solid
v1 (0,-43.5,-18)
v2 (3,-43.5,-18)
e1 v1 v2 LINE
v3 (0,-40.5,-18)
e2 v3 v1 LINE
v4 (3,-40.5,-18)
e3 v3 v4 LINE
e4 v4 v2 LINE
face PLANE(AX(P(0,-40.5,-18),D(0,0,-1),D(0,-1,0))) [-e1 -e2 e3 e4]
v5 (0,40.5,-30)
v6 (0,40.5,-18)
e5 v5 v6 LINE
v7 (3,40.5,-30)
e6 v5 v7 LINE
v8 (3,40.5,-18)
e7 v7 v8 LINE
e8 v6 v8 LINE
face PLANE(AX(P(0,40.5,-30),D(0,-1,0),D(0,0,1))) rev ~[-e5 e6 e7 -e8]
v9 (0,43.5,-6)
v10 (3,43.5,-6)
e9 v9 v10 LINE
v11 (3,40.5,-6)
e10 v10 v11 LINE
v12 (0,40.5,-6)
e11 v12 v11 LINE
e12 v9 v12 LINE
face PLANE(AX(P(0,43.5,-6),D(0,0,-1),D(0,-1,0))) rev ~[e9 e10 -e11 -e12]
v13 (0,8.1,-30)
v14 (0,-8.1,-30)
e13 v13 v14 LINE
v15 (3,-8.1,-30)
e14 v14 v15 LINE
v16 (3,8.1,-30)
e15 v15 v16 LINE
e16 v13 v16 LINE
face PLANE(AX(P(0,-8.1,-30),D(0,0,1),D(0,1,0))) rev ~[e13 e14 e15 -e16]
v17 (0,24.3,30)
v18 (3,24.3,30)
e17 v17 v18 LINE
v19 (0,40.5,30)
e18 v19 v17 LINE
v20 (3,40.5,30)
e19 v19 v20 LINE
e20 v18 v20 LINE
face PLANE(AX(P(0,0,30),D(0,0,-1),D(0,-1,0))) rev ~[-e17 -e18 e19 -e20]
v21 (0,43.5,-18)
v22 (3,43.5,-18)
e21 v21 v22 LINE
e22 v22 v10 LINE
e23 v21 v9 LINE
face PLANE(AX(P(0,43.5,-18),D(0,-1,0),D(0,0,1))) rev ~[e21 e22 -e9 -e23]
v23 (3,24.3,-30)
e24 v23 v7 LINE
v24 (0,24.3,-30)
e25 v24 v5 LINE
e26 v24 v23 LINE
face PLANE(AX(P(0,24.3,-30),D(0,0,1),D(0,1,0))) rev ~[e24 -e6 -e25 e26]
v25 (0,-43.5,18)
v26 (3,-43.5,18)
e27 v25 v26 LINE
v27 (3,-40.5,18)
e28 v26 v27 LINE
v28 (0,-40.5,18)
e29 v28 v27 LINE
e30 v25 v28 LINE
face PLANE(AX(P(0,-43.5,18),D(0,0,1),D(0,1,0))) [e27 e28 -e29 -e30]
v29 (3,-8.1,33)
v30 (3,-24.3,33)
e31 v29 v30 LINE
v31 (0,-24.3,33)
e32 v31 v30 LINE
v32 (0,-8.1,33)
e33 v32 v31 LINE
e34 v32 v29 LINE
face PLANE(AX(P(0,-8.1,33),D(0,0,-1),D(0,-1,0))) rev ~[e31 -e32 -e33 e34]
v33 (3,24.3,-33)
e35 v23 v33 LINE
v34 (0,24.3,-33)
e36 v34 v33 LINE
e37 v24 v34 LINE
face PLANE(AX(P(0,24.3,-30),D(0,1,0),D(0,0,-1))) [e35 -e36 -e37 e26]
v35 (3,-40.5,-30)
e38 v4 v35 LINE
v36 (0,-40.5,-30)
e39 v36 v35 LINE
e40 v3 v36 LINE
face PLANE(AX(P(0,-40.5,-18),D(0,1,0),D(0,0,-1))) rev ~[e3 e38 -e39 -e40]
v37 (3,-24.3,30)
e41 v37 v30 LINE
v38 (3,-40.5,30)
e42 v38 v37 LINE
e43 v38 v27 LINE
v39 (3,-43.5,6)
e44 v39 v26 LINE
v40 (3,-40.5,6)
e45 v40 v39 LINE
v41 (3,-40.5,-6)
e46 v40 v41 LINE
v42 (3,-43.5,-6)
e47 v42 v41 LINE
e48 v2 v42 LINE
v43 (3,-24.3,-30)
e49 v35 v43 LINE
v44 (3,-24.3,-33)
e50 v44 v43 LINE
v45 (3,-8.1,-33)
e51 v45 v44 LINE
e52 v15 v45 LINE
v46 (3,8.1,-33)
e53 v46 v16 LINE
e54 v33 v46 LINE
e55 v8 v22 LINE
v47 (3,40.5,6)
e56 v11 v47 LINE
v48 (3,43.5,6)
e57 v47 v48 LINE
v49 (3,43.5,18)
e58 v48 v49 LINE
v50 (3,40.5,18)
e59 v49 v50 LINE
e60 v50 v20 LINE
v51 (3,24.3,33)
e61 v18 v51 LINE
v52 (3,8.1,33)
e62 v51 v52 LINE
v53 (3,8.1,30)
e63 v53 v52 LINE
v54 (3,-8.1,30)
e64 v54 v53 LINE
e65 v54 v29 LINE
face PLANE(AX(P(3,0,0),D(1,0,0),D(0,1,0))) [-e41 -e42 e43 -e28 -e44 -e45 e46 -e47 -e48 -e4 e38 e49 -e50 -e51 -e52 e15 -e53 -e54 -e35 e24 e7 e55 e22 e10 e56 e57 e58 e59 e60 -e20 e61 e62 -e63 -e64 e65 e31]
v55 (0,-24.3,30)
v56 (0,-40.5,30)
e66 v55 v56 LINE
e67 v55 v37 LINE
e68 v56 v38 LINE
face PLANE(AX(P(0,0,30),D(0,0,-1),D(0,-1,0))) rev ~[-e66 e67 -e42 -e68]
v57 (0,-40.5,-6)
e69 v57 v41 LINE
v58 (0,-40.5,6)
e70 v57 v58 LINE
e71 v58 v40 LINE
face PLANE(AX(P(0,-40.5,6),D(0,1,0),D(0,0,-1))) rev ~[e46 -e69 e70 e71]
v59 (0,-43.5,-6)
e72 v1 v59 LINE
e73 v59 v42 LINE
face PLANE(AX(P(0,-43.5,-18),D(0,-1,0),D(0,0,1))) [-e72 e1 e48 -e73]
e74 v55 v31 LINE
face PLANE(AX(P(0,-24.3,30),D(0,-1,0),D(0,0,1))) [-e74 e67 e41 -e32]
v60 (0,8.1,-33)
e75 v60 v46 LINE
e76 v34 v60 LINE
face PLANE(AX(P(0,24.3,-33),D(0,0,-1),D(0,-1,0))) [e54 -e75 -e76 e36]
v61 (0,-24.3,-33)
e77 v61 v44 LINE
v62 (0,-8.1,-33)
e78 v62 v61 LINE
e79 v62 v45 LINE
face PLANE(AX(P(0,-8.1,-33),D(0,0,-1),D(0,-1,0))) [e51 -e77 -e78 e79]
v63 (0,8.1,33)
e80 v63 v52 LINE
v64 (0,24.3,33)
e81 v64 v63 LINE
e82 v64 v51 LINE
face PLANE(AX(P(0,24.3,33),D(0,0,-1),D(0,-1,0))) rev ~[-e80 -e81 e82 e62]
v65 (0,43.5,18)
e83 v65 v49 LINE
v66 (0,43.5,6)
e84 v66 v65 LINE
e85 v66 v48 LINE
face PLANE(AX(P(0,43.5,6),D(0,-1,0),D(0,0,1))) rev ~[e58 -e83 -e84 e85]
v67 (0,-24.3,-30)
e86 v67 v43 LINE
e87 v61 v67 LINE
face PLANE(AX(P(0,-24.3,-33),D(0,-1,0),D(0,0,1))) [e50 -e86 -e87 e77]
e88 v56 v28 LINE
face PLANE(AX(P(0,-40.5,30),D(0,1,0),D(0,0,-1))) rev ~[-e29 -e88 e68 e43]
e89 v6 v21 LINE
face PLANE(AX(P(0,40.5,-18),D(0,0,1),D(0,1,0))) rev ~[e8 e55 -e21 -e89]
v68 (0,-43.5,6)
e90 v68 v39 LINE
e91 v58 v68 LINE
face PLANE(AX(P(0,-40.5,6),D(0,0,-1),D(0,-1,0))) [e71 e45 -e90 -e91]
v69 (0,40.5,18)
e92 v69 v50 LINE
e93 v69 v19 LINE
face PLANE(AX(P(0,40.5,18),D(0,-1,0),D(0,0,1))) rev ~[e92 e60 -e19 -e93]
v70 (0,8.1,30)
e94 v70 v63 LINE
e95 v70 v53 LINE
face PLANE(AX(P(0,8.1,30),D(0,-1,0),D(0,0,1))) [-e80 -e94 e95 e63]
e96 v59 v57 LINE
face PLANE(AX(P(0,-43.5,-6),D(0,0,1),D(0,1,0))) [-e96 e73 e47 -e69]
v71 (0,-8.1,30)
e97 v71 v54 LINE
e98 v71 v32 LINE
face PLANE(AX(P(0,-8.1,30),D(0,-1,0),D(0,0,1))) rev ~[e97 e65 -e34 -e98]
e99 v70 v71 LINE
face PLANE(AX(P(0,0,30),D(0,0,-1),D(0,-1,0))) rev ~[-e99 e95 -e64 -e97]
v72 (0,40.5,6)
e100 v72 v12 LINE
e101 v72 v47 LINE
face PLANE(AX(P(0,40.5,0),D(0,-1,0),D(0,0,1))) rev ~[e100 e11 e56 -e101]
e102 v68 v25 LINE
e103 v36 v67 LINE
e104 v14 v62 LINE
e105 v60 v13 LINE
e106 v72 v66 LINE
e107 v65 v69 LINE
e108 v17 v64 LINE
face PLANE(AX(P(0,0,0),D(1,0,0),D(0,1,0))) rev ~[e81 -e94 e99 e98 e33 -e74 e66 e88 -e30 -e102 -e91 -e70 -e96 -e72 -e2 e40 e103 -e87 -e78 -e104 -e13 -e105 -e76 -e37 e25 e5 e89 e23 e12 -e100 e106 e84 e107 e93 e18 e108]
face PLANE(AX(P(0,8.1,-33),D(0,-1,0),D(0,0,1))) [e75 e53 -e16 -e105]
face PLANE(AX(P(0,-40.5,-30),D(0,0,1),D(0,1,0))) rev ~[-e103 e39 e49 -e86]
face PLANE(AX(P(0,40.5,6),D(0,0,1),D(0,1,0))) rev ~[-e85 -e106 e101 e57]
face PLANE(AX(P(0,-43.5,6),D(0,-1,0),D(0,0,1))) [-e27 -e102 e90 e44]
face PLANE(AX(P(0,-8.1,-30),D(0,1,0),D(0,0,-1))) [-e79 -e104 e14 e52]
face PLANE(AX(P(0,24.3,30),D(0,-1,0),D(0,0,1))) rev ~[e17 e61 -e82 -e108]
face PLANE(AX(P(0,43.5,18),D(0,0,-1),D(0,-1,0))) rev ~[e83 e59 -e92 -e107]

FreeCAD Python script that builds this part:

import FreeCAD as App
import Part
import Sketcher

V = App.Vector
Q = App.Units.Quantity

doc = App.newDocument("Part")
params = doc.addObject("Spreadsheet::Sheet", "Params")
for row, (alias, value) in enumerate([
    ("sketch1_width", "3 mm"),
    ("sketch1_width2", "81 mm"),
    ("sketch1_height", "12 mm"),
    ("pad1_length", "3 mm"),
    ("sketch2_height", "3 mm"),
    ("sketch2_width", "16.2 mm"),
    ("pad2_length", "3 mm"),
], start=1):
    params.set(f"A{row}", alias)
    params.set(f"B{row}", "=" + value)
    params.setAlias(f"B{row}", alias)

body = doc.addObject("PartDesign::Body", "Body")

sketch1 = doc.addObject("Sketcher::SketchObject", "Sketch")
body.addObject(sketch1)
sketch1.AttachmentSupport = (doc.YZ_Plane, [""])
sketch1.MapMode = "FlatFace"
sketch1.addGeometry(Part.LineSegment(V(-40.5, 30, 0), V(-40.5, 18, 0)), False)
sketch1.addGeometry(Part.LineSegment(V(-40.5, 18, 0), V(-43.5, 18, 0)), False)
sketch1.addGeometry(Part.LineSegment(V(-43.5, 18, 0), V(-43.5, 6, 0)), False)
sketch1.addGeometry(Part.LineSegment(V(-43.5, 6, 0), V(-40.5, 6, 0)), False)
sketch1.addGeometry(Part.LineSegment(V(-40.5, 6, 0), V(-40.5, -6, 0)), False)
sketch1.addGeometry(Part.LineSegment(V(-40.5, -6, 0), V(-43.5, -6, 0)), False)
sketch1.addGeometry(Part.LineSegment(V(-43.5, -6, 0), V(-43.5, -18, 0)), False)
sketch1.addGeometry(Part.LineSegment(V(-43.5, -18, 0), V(-40.5, -18, 0)), False)
sketch1.addGeometry(Part.LineSegment(V(-40.5, -18, 0), V(-40.5, -30, 0)), False)
sketch1.addGeometry(Part.LineSegment(V(-40.5, -30, 0), V(-24.3, -30, 0)), False)
sketch1.addGeometry(Part.LineSegment(V(-24.3, -30, 0), V(-24.3, -33, 0)), False)
sketch1.addGeometry(Part.LineSegment(V(-24.3, -33, 0), V(-8.1, -33, 0)), False)
sketch1.addGeometry(Part.LineSegment(V(-8.1, -33, 0), V(-8.1, -30, 0)), False)
sketch1.addGeometry(Part.LineSegment(V(-8.1, -30, 0), V(8.1, -30, 0)), False)
sketch1.addGeometry(Part.LineSegment(V(8.1, -30, 0), V(8.1, -33, 0)), False)
sketch1.addGeometry(Part.LineSegment(V(8.1, -33, 0), V(24.3, -33, 0)), False)
sketch1.addGeometry(Part.LineSegment(V(24.3, -33, 0), V(24.3, -30, 0)), False)
sketch1.addGeometry(Part.LineSegment(V(24.3, -30, 0), V(40.5, -30, 0)), False)
sketch1.addGeometry(Part.LineSegment(V(40.5, -30, 0), V(40.5, -18, 0)), False)
sketch1.addGeometry(Part.LineSegment(V(40.5, -18, 0), V(43.5, -18, 0)), False)
sketch1.addGeometry(Part.LineSegment(V(43.5, -18, 0), V(43.5, -6, 0)), False)
sketch1.addGeometry(Part.LineSegment(V(43.5, -6, 0), V(40.5, -6, 0)), False)
sketch1.addGeometry(Part.LineSegment(V(40.5, -6, 0), V(40.5, 6, 0)), False)
sketch1.addGeometry(Part.LineSegment(V(40.5, 6, 0), V(43.5, 6, 0)), False)
sketch1.addGeometry(Part.LineSegment(V(43.5, 6, 0), V(43.5, 18, 0)), False)
sketch1.addGeometry(Part.LineSegment(V(43.5, 18, 0), V(40.5, 18, 0)), False)
sketch1.addGeometry(Part.LineSegment(V(40.5, 18, 0), V(40.5, 30, 0)), False)
sketch1.addGeometry(Part.LineSegment(V(40.5, 30, 0), V(-40.5, 30, 0)), False)
sketch1.addConstraint(Sketcher.Constraint("Coincident", 0, 2, 1, 1))
sketch1.addConstraint(Sketcher.Constraint("Coincident", 1, 2, 2, 1))
sketch1.addConstraint(Sketcher.Constraint("Coincident", 2, 2, 3, 1))
sketch1.addConstraint(Sketcher.Constraint("Coincident", 3, 2, 4, 1))
sketch1.addConstraint(Sketcher.Constraint("Coincident", 4, 2, 5, 1))
sketch1.addConstraint(Sketcher.Constraint("Coincident", 5, 2, 6, 1))
sketch1.addConstraint(Sketcher.Constraint("Coincident", 6, 2, 7, 1))
sketch1.addConstraint(Sketcher.Constraint("Coincident", 7, 2, 8, 1))
sketch1.addConstraint(Sketcher.Constraint("Coincident", 8, 2, 9, 1))
sketch1.addConstraint(Sketcher.Constraint("Coincident", 9, 2, 10, 1))
sketch1.addConstraint(Sketcher.Constraint("Coincident", 10, 2, 11, 1))
sketch1.addConstraint(Sketcher.Constraint("Coincident", 11, 2, 12, 1))
sketch1.addConstraint(Sketcher.Constraint("Coincident", 12, 2, 13, 1))
sketch1.addConstraint(Sketcher.Constraint("Coincident", 13, 2, 14, 1))
sketch1.addConstraint(Sketcher.Constraint("Coincident", 14, 2, 15, 1))
sketch1.addConstraint(Sketcher.Constraint("Coincident", 15, 2, 16, 1))
sketch1.addConstraint(Sketcher.Constraint("Coincident", 16, 2, 17, 1))
sketch1.addConstraint(Sketcher.Constraint("Coincident", 17, 2, 18, 1))
sketch1.addConstraint(Sketcher.Constraint("Coincident", 18, 2, 19, 1))
sketch1.addConstraint(Sketcher.Constraint("Coincident", 19, 2, 20, 1))
sketch1.addConstraint(Sketcher.Constraint("Coincident", 20, 2, 21, 1))
sketch1.addConstraint(Sketcher.Constraint("Coincident", 21, 2, 22, 1))
sketch1.addConstraint(Sketcher.Constraint("Coincident", 22, 2, 23, 1))
sketch1.addConstraint(Sketcher.Constraint("Coincident", 23, 2, 24, 1))
sketch1.addConstraint(Sketcher.Constraint("Coincident", 24, 2, 25, 1))
sketch1.addConstraint(Sketcher.Constraint("Coincident", 25, 2, 26, 1))
sketch1.addConstraint(Sketcher.Constraint("Coincident", 26, 2, 27, 1))
sketch1.addConstraint(Sketcher.Constraint("Coincident", 27, 2, 0, 1))
sketch1.addConstraint(Sketcher.Constraint("Vertical", 0))
sketch1.addConstraint(Sketcher.Constraint("Horizontal", 1))
sketch1.addConstraint(Sketcher.Constraint("Vertical", 2))
sketch1.addConstraint(Sketcher.Constraint("Horizontal", 3))
sketch1.addConstraint(Sketcher.Constraint("Vertical", 4))
sketch1.addConstraint(Sketcher.Constraint("Horizontal", 5))
sketch1.addConstraint(Sketcher.Constraint("Vertical", 6))
sketch1.addConstraint(Sketcher.Constraint("Horizontal", 7))
sketch1.addConstraint(Sketcher.Constraint("Vertical", 8))
sketch1.addConstraint(Sketcher.Constraint("Horizontal", 9))
sketch1.addConstraint(Sketcher.Constraint("Vertical", 10))
sketch1.addConstraint(Sketcher.Constraint("Horizontal", 11))
sketch1.addConstraint(Sketcher.Constraint("Vertical", 12))
sketch1.addConstraint(Sketcher.Constraint("Horizontal", 13))
sketch1.addConstraint(Sketcher.Constraint("Vertical", 14))
sketch1.addConstraint(Sketcher.Constraint("Horizontal", 15))
sketch1.addConstraint(Sketcher.Constraint("Vertical", 16))
sketch1.addConstraint(Sketcher.Constraint("Horizontal", 17))
sketch1.addConstraint(Sketcher.Constraint("Vertical", 18))
sketch1.addConstraint(Sketcher.Constraint("Horizontal", 19))
sketch1.addConstraint(Sketcher.Constraint("Vertical", 20))
sketch1.addConstraint(Sketcher.Constraint("Horizontal", 21))
sketch1.addConstraint(Sketcher.Constraint("Vertical", 22))
sketch1.addConstraint(Sketcher.Constraint("Horizontal", 23))
sketch1.addConstraint(Sketcher.Constraint("Vertical", 24))
sketch1.addConstraint(Sketcher.Constraint("Horizontal", 25))
sketch1.addConstraint(Sketcher.Constraint("Vertical", 26))
sketch1.addConstraint(Sketcher.Constraint("Horizontal", 27))
sketch1.addConstraint(Sketcher.Constraint("Symmetric", 0, 2, 18, 2, -1, 1))
sketch1.addConstraint(Sketcher.Constraint("Symmetric", 2, 2, 20, 2, -1, 1))
sketch1.addConstraint(Sketcher.Constraint("Symmetric", 4, 2, 22, 2, -1, 1))
sketch1.addConstraint(Sketcher.Constraint("Symmetric", 6, 2, 24, 2, -1, 1))
sketch1.addConstraint(Sketcher.Constraint("Symmetric", 8, 2, 26, 2, -1, 1))
sketch1.addConstraint(Sketcher.Constraint("Symmetric", 11, 2, 14, 2, -2))
sketch1.addConstraint(Sketcher.Constraint("Symmetric", 9, 2, 16, 2, -2))
sketch1.addConstraint(Sketcher.Constraint("Symmetric", 7, 2, 18, 2, -2))
sketch1.addConstraint(Sketcher.Constraint("Symmetric", 5, 2, 20, 2, -2))
sketch1.addConstraint(Sketcher.Constraint("Horizontal", 9, 2, 12, 2))
sketch1.addConstraint(Sketcher.Constraint("Vertical", 0, 2, 3, 2))
sketch1.addConstraint(Sketcher.Constraint("Equal", 9, 11))
sketch1.addConstraint(Sketcher.Constraint("Equal", 11, 13))
sketch1.addConstraint(Sketcher.Constraint("Equal", 0, 2))
sketch1.addConstraint(Sketcher.Constraint("Equal", 2, 4))
sketch1.addConstraint(Sketcher.Constraint("Equal", 25, 10))
sketch1.addConstraint(Sketcher.Constraint("DistanceX", 1, 2, 1, 1, Q("3 mm")))
sketch1.addConstraint(Sketcher.Constraint("DistanceX", 27, 2, 27, 1, Q("81 mm")))
sketch1.addConstraint(Sketcher.Constraint("DistanceY", 0, 2, 0, 1, Q("12 mm")))
sketch1.setExpression("Constraints[72]", "Params.sketch1_width")
sketch1.setExpression("Constraints[73]", "Params.sketch1_width2")
sketch1.setExpression("Constraints[74]", "Params.sketch1_height")
pad1 = doc.addObject("PartDesign::Pad", "Pad")
body.addObject(pad1)
pad1.Profile = sketch1
pad1.setExpression("Length", "Params.pad1_length")

sketch2 = doc.addObject("Sketcher::SketchObject", "Sketch001")
body.addObject(sketch2)
sketch2.AttachmentSupport = (doc.YZ_Plane, [""])
sketch2.MapMode = "FlatFace"
sketch2.addGeometry(Part.LineSegment(V(24.3, 33, 0), V(24.3, 30, 0)), False)
sketch2.addGeometry(Part.LineSegment(V(24.3, 30, 0), V(8.1, 30, 0)), False)
sketch2.addGeometry(Part.LineSegment(V(8.1, 30, 0), V(8.1, 33, 0)), False)
sketch2.addGeometry(Part.LineSegment(V(8.1, 33, 0), V(24.3, 33, 0)), False)
sketch2.addGeometry(Part.LineSegment(V(-8.1, 33, 0), V(-8.1, 30, 0)), False)
sketch2.addGeometry(Part.LineSegment(V(-8.1, 30, 0), V(-24.3, 30, 0)), False)
sketch2.addGeometry(Part.LineSegment(V(-24.3, 30, 0), V(-24.3, 33, 0)), False)
sketch2.addGeometry(Part.LineSegment(V(-24.3, 33, 0), V(-8.1, 33, 0)), False)
sketch2.addConstraint(Sketcher.Constraint("Coincident", 0, 2, 1, 1))
sketch2.addConstraint(Sketcher.Constraint("Coincident", 1, 2, 2, 1))
sketch2.addConstraint(Sketcher.Constraint("Coincident", 2, 2, 3, 1))
sketch2.addConstraint(Sketcher.Constraint("Coincident", 3, 2, 0, 1))
sketch2.addConstraint(Sketcher.Constraint("Coincident", 4, 2, 5, 1))
sketch2.addConstraint(Sketcher.Constraint("Coincident", 5, 2, 6, 1))
sketch2.addConstraint(Sketcher.Constraint("Coincident", 6, 2, 7, 1))
sketch2.addConstraint(Sketcher.Constraint("Coincident", 7, 2, 4, 1))
sketch2.addConstraint(Sketcher.Constraint("Vertical", 0))
sketch2.addConstraint(Sketcher.Constraint("Horizontal", 1))
sketch2.addConstraint(Sketcher.Constraint("Vertical", 2))
sketch2.addConstraint(Sketcher.Constraint("Horizontal", 3))
sketch2.addConstraint(Sketcher.Constraint("Vertical", 4))
sketch2.addConstraint(Sketcher.Constraint("Horizontal", 5))
sketch2.addConstraint(Sketcher.Constraint("Vertical", 6))
sketch2.addConstraint(Sketcher.Constraint("Horizontal", 7))
sketch2.addConstraint(Sketcher.Constraint("Symmetric", 1, 2, 4, 2, -2))
sketch2.addConstraint(Sketcher.Constraint("Symmetric", 3, 2, 6, 2, -2))
sketch2.addConstraint(Sketcher.Constraint("DistanceY", 0, 2, 0, 1, Q("3 mm")))
sketch2.addConstraint(Sketcher.Constraint("DistanceX", 1, 2, 1, 1, Q("16.2 mm")))
sketch2.addConstraint(Sketcher.Constraint("DistanceY", -1, 1, 0, 2, Q("30 mm")))
sketch2.addConstraint(Sketcher.Constraint("DistanceX", -1, 1, 0, 2, Q("24.3 mm")))
sketch2.setExpression("Constraints[18]", "Params.sketch2_height")
sketch2.setExpression("Constraints[19]", "Params.sketch2_width")
pad2 = doc.addObject("PartDesign::Pad", "Pad001")
body.addObject(pad2)
pad2.Profile = sketch2
pad2.setExpression("Length", "Params.pad2_length")

doc.recompute()
